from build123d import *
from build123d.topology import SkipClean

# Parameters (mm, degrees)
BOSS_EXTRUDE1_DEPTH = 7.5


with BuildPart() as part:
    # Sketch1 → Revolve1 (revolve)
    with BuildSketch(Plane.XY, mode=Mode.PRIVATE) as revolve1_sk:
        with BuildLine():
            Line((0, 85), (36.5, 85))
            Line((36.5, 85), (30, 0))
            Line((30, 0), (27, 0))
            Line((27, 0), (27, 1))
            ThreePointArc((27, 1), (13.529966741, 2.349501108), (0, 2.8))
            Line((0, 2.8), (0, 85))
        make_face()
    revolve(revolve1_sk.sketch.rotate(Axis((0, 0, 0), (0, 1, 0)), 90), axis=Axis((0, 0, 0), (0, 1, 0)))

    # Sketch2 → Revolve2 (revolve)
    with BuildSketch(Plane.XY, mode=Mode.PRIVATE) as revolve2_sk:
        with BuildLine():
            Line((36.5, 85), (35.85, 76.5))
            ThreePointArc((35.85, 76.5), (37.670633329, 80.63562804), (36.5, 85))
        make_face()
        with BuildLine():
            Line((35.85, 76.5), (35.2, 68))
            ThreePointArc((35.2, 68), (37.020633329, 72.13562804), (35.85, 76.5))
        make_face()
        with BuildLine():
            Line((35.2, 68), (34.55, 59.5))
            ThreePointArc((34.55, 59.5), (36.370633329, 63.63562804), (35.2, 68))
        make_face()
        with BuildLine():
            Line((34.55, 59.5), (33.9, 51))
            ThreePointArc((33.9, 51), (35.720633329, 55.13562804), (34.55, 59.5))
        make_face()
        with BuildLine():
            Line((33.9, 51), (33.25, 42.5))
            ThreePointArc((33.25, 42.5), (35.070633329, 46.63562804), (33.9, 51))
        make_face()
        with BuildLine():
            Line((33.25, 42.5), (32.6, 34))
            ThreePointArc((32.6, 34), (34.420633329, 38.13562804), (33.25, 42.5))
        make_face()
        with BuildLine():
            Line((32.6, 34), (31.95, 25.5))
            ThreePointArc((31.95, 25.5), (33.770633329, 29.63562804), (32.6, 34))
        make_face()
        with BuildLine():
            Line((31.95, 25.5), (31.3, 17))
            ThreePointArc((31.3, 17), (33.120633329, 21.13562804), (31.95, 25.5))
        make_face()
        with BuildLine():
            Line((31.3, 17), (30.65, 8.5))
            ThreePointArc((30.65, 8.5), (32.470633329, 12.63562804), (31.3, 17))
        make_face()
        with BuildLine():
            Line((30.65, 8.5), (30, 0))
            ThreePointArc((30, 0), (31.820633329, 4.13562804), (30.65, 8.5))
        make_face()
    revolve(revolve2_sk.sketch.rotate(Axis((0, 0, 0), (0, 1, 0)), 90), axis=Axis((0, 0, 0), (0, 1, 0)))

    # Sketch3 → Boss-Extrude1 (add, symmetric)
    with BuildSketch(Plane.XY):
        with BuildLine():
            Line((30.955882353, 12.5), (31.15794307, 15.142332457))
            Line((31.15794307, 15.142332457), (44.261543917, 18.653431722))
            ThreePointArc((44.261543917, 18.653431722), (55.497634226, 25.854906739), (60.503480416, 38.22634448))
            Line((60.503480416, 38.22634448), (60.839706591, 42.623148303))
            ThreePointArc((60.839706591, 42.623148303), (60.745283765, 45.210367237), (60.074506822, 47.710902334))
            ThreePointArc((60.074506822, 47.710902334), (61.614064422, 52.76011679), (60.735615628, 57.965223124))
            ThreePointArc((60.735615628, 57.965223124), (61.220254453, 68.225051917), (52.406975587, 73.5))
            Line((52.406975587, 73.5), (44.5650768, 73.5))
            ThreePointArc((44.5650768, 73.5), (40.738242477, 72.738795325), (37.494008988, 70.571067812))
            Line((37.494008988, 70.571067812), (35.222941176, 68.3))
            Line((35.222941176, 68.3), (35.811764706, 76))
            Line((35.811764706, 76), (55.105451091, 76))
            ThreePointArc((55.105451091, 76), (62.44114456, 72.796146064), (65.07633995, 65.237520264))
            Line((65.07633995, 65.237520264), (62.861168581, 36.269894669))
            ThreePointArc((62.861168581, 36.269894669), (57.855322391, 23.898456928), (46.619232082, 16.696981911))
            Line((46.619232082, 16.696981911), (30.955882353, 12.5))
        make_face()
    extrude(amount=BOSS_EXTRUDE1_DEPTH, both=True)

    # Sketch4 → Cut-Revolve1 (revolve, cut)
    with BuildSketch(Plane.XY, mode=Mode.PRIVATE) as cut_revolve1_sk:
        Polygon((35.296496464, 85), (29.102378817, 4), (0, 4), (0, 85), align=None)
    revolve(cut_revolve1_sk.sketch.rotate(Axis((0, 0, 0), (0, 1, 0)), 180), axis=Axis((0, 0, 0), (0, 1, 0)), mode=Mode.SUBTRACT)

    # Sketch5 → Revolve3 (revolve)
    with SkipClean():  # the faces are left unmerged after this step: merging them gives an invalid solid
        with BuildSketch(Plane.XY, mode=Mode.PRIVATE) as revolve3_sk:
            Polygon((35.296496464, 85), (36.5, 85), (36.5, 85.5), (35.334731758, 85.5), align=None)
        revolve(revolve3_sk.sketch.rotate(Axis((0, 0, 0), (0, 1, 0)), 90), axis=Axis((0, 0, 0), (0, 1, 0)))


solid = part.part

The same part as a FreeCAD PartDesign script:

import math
import FreeCAD as App
import Part
import Sketcher
from FreeCAD import Vector
Q = App.Units.Quantity

doc = App.newDocument("Part")
params = doc.addObject("Spreadsheet::Sheet", "Params")
for row, (alias, value) in enumerate([
    ("sketch1_radius", "203.4 mm"),
    ("sketch1_width", "3 mm"),
    ("sketch1_height", "1 mm"),
    ("sketch1_width2", "36.5 mm"),
    ("sketch1_height2", "82.2 mm"),
    ("revolution_angle", "360 deg"),
    ("revolution2_angle", "360 deg"),
    ("sketch3_radius", "22 mm"),
    ("sketch3_radius2", "10 mm"),
    ("sketch3_radius3", "11.5 mm"),
    ("pad1_length", "15 mm"),
    ("sketch4_height", "81 mm"),
    ("groove_angle", "360 deg"),
    ("sketch5_height", "0.5 mm"),
    ("revolution3_angle", "360 deg"),
], start=1):
    params.set(f"A{row}", alias)
    params.set(f"B{row}", "=" + value)
    params.setAlias(f"B{row}", alias)

body = doc.addObject("PartDesign::Body", "Body")

sketch1 = body.newObject("Sketcher::SketchObject", "Sketch")
sketch1.AttachmentSupport = (doc.getObject("XY_Plane"), [""])
sketch1.MapMode = "FlatFace"
sketch1.addGeometry(Part.LineSegment(Vector(36.5, 85, 0), Vector(0, 85, 0)), False)
sketch1.addGeometry(Part.LineSegment(Vector(0, 85, 0), Vector(0, 2.8, 0)), False)
sketch1.addGeometry(Part.ArcOfCircle(Part.Circle(Vector(0, -200.6, 0), Vector(0, 0, 1), 203.4), math.radians(82.37), math.radians(90)), False)
sketch1.addGeometry(Part.LineSegment(Vector(27, 1, 0), Vector(27, 0, 0)), False)
sketch1.addGeometry(Part.LineSegment(Vector(27, 0, 0), Vector(30, 0, 0)), False)
sketch1.addGeometry(Part.LineSegment(Vector(30, 0, 0), Vector(36.5, 85, 0)), False)
sketch1.addConstraint(Sketcher.Constraint("Coincident", 0, 2, 1, 1))
sketch1.addConstraint(Sketcher.Constraint("Coincident", 1, 2, 2, 2))
sketch1.addConstraint(Sketcher.Constraint("Coincident", 2, 1, 3, 1))
sketch1.addConstraint(Sketcher.Constraint("Coincident", 3, 2, 4, 1))
sketch1.addConstraint(Sketcher.Constraint("Coincident", 4, 2, 5, 1))
sketch1.addConstraint(Sketcher.Constraint("Coincident", 5, 2, 0, 1))
sketch1.addConstraint(Sketcher.Constraint("Horizontal", 0))
sketch1.addConstraint(Sketcher.Constraint("Vertical", 1))
sketch1.addConstraint(Sketcher.Constraint("Vertical", 3))
sketch1.addConstraint(Sketcher.Constraint("Horizontal", 4))
sketch1.addConstraint(Sketcher.Constraint("PointOnObject", 2, 3, -2))
sketch1.addConstraint(Sketcher.Constraint("PointOnObject", 0, 2, -2))
sketch1.addConstraint(Sketcher.Constraint("PointOnObject", 3, 2, -1))
sketch1.addConstraint(Sketcher.Constraint("Radius", 2, Q("203.4 mm")))
sketch1.addConstraint(Sketcher.Constraint("DistanceX", 4, 1, 4, 2, Q("3 mm")))
sketch1.addConstraint(Sketcher.Constraint("DistanceY", 3, 2, 3, 1, Q("1 mm")))
sketch1.addConstraint(Sketcher.Constraint("DistanceX", 0, 2, 0, 1, Q("36.5 mm")))
sketch1.addConstraint(Sketcher.Constraint("DistanceY", 1, 2, 1, 1, Q("82.2 mm")))
sketch1.addConstraint(Sketcher.Constraint("DistanceY", -1, 1, 0, 2, Q("85 mm")))
sketch1.setExpression("Constraints[13]", "Params.sketch1_radius")
sketch1.setExpression("Constraints[14]", "Params.sketch1_width")
sketch1.setExpression("Constraints[15]", "Params.sketch1_height")
sketch1.setExpression("Constraints[16]", "Params.sketch1_width2")
sketch1.setExpression("Constraints[17]", "Params.sketch1_height2")
revolution = body.newObject("PartDesign::Revolution", "Revolution")
revolution.Profile = sketch1
revolution.ReferenceAxis = (sketch1, ["V_Axis"])
revolution.setExpression("Angle", "Params.revolution_angle")

sketch2 = body.newObject("Sketcher::SketchObject", "Sketch001")
sketch2.AttachmentSupport = (doc.getObject("XY_Plane"), [""])
sketch2.MapMode = "FlatFace"
sketch2.addGeometry(Part.LineSegment(Vector(36, 85, 0), Vector(36, 76, 0)), False)
sketch2.addGeometry(Part.ArcOfCircle(Part.Circle(Vector(31, 81, 0), Vector(0, 0, 1), 7), math.radians(-43), math.radians(34)), False)
sketch2.addGeometry(Part.LineSegment(Vector(36, 76, 0), Vector(35, 68, 0)), False)
sketch2.addGeometry(Part.ArcOfCircle(Part.Circle(Vector(30, 73, 0), Vector(0, 0, 1), 7), math.radians(-43), math.radians(34)), False)
sketch2.addGeometry(Part.LineSegment(Vector(35, 68, 0), Vector(35, 60, 0)), False)
sketch2.addGeometry(Part.ArcOfCircle(Part.Circle(Vector(30, 64, 0), Vector(0, 0, 1), 7), math.radians(-43), math.radians(34)), False)
sketch2.addGeometry(Part.LineSegment(Vector(35, 60, 0), Vector(34, 51, 0)), False)
sketch2.addGeometry(Part.ArcOfCircle(Part.Circle(Vector(29, 56, 0), Vector(0, 0, 1), 7), math.radians(-43), math.radians(34)), False)
sketch2.addGeometry(Part.LineSegment(Vector(34, 51, 0), Vector(33, 42, 0)), False)
sketch2.addGeometry(Part.ArcOfCircle(Part.Circle(Vector(28, 47, 0), Vector(0, 0, 1), 7), math.radians(-43), math.radians(34)), False)
sketch2.addGeometry(Part.LineSegment(Vector(33, 42, 0), Vector(33, 34, 0)), False)
sketch2.addGeometry(Part.ArcOfCircle(Part.Circle(Vector(28, 39, 0), Vector(0, 0, 1), 7), math.radians(-43), math.radians(34)), False)
sketch2.addGeometry(Part.LineSegment(Vector(33, 34, 0), Vector(32, 26, 0)), False)
sketch2.addGeometry(Part.ArcOfCircle(Part.Circle(Vector(27, 30, 0), Vector(0, 0, 1), 7), math.radians(-43), math.radians(34)), False)
sketch2.addGeometry(Part.LineSegment(Vector(32, 26, 0), Vector(31, 17, 0)), False)
sketch2.addGeometry(Part.ArcOfCircle(Part.Circle(Vector(26, 22, 0), Vector(0, 0, 1), 7), math.radians(-43), math.radians(34)), False)
sketch2.addGeometry(Part.LineSegment(Vector(31, 17, 0), Vector(31, 8, 0)), False)
sketch2.addGeometry(Part.ArcOfCircle(Part.Circle(Vector(26, 13, 0), Vector(0, 0, 1), 7), math.radians(-43), math.radians(34)), False)
sketch2.addGeometry(Part.LineSegment(Vector(31, 8, 0), Vector(30, 0, 0)), False)
sketch2.addGeometry(Part.ArcOfCircle(Part.Circle(Vector(25, 5, 0), Vector(0, 0, 1), 7), math.radians(-43), math.radians(34)), False)
sketch2.addConstraint(Sketcher.Constraint("Coincident", 0, 1, 1, 2))
sketch2.addConstraint(Sketcher.Constraint("Coincident", 1, 1, 0, 2))
sketch2.addConstraint(Sketcher.Constraint("Coincident", 2, 1, 3, 2))
sketch2.addConstraint(Sketcher.Constraint("Coincident", 3, 1, 2, 2))
sketch2.addConstraint(Sketcher.Constraint("Coincident", 4, 1, 5, 2))
sketch2.addConstraint(Sketcher.Constraint("Coincident", 5, 1, 4, 2))
sketch2.addConstraint(Sketcher.Constraint("Coincident", 6, 1, 7, 2))
sketch2.addConstraint(Sketcher.Constraint("Coincident", 7, 1, 6, 2))
sketch2.addConstraint(Sketcher.Constraint("Coincident", 8, 1, 9, 2))
sketch2.addConstraint(Sketcher.Constraint("Coincident", 9, 1, 8, 2))
sketch2.addConstraint(Sketcher.Constraint("Coincident", 10, 1, 11, 2))
sketch2.addConstraint(Sketcher.Constraint("Coincident", 11, 1, 10, 2))
sketch2.addConstraint(Sketcher.Constraint("Coincident", 12, 1, 13, 2))
sketch2.addConstraint(Sketcher.Constraint("Coincident", 13, 1, 12, 2))
sketch2.addConstraint(Sketcher.Constraint("Coincident", 14, 1, 15, 2))
sketch2.addConstraint(Sketcher.Constraint("Coincident", 15, 1, 14, 2))
sketch2.addConstraint(Sketcher.Constraint("Coincident", 16, 1, 17, 2))
sketch2.addConstraint(Sketcher.Constraint("Coincident", 17, 1, 16, 2))
sketch2.addConstraint(Sketcher.Constraint("Coincident", 18, 1, 19, 2))
sketch2.addConstraint(Sketcher.Constraint("Coincident", 19, 1, 18, 2))
sketch2.addConstraint(Sketcher.Constraint("Coincident", 2, 1, 1, 1))
sketch2.addConstraint(Sketcher.Constraint("Coincident", 4, 1, 3, 1))
sketch2.addConstraint(Sketcher.Constraint("Coincident", 6, 1, 5, 1))
sketch2.addConstraint(Sketcher.Constraint("Coincident", 8, 1, 7, 1))
sketch2.addConstraint(Sketcher.Constraint("Coincident", 10, 1, 9, 1))
sketch2.addConstraint(Sketcher.Constraint("Coincident", 12, 1, 11, 1))
sketch2.addConstraint(Sketcher.Constraint("Coincident", 14, 1, 13, 1))
sketch2.addConstraint(Sketcher.Constraint("Coincident", 16, 1, 15, 1))
sketch2.addConstraint(Sketcher.Constraint("Coincident", 18, 1, 17, 1))
sketch2.addConstraint(Sketcher.Constraint("Equal", 1, 3))
sketch2.addConstraint(Sketcher.Constraint("Equal", 3, 5))
sketch2.addConstraint(Sketcher.Constraint("Equal", 5, 7))
sketch2.addConstraint(Sketcher.Constraint("Equal", 7, 9))
sketch2.addConstraint(Sketcher.Constraint("Equal", 9, 11))
sketch2.addConstraint(Sketcher.Constraint("Equal", 11, 13))
sketch2.addConstraint(Sketcher.Constraint("Equal", 13, 15))
sketch2.addConstraint(Sketcher.Constraint("Equal", 15, 17))
sketch2.addConstraint(Sketcher.Constraint("Equal", 17, 19))
sketch2.addConstraint(Sketcher.Constraint("PointOnObject", 19, 1, -1))
sketch2.addConstraint(Sketcher.Constraint("Parallel", 0, 2))
sketch2.addConstraint(Sketcher.Constraint("Parallel", 2, 4))
sketch2.addConstraint(Sketcher.Constraint("Parallel", 4, 6))
sketch2.addConstraint(Sketcher.Constraint("Parallel", 6, 8))
sketch2.addConstraint(Sketcher.Constraint("Parallel", 8, 10))
sketch2.addConstraint(Sketcher.Constraint("Parallel", 10, 12))
sketch2.addConstraint(Sketcher.Constraint("Parallel", 12, 14))
sketch2.addConstraint(Sketcher.Constraint("Parallel", 14, 16))
sketch2.addConstraint(Sketcher.Constraint("Parallel", 16, 18))
sketch2.addConstraint(Sketcher.Constraint("Equal", 0, 2))
sketch2.addConstraint(Sketcher.Constraint("Equal", 2, 4))
sketch2.addConstraint(Sketcher.Constraint("Equal", 4, 6))
sketch2.addConstraint(Sketcher.Constraint("Equal", 6, 8))
sketch2.addConstraint(Sketcher.Constraint("Equal", 8, 10))
sketch2.addConstraint(Sketcher.Constraint("Equal", 10, 12))
sketch2.addConstraint(Sketcher.Constraint("Equal", 12, 14))
sketch2.addConstraint(Sketcher.Constraint("Equal", 14, 16))
sketch2.addConstraint(Sketcher.Constraint("Equal", 16, 18))
sketch2.addConstraint(Sketcher.Constraint("DistanceY", -1, 1, 0, 1, Q("85 mm")))
sketch2.addConstraint(Sketcher.Constraint("DistanceX", -1, 1, 19, 1, Q("30 mm")))
sketch2.addConstraint(Sketcher.Constraint("DistanceX", -1, 1, 0, 1, Q("36.5 mm")))
sketch2.addConstraint(Sketcher.Constraint("Radius", 1, Q("6.806042 mm")))
revolution2 = body.newObject("PartDesign::Revolution", "Revolution001")
revolution2.Profile = sketch2
revolution2.ReferenceAxis = (sketch2, ["V_Axis"])
revolution2.setExpression("Angle", "Params.revolution2_angle")

sketch3 = body.newObject("Sketcher::SketchObject", "Sketch002")
sketch3.AttachmentSupport = (doc.getObject("XY_Plane"), [""])
sketch3.MapMode = "FlatFace"
sketch3.addGeometry(Part.LineSegment(Vector(31.2, 15.1, 0), Vector(31, 12.5, 0)), False)
sketch3.addGeometry(Part.LineSegment(Vector(31, 12.5, 0), Vector(46.6, 16.7, 0)), False)
sketch3.addGeometry(Part.ArcOfCircle(Part.Circle(Vector(40.9, 37.9, 0), Vector(0, 0, 1), 22), math.radians(-75), math.radians(-4)), False)
sketch3.addGeometry(Part.LineSegment(Vector(62.9, 36.3, 0), Vector(65.1, 65.2, 0)), False)
sketch3.addGeometry(Part.ArcOfCircle(Part.Circle(Vector(55.1, 66, 0), Vector(0, 0, 1), 10), math.radians(-4), math.radians(90)), False)
sketch3.addGeometry(Part.LineSegment(Vector(55.1, 76, 0), Vector(35.8, 76, 0)), False)
sketch3.addGeometry(Part.LineSegment(Vector(35.8, 76, 0), Vector(35.2, 68.3, 0)), False)
sketch3.addGeometry(Part.LineSegment(Vector(35.2, 68.3, 0), Vector(37.5, 70.6, 0)), False)
sketch3.addGeometry(Part.ArcOfCircle(Part.Circle(Vector(44.6, 63.5, 0), Vector(0, 0, 1), 10), math.radians(90), math.radians(135)), False)
sketch3.addGeometry(Part.LineSegment(Vector(44.6, 73.5, 0), Vector(52.4, 73.5, 0)), False)
sketch3.addGeometry(Part.ArcOfCircle(Part.Circle(Vector(52.4, 63.5, 0), Vector(0, 0, 1), 10), math.radians(-34), math.radians(90)), False)
sketch3.addGeometry(Part.ArcOfCircle(Part.Circle(Vector(50.1, 53.5, 0), Vector(0, 0, 1), 11.5), math.radians(-30), math.radians(23)), False)
sketch3.addGeometry(Part.ArcOfCircle(Part.Circle(Vector(49.4, 43.5, 0), Vector(0, 0, 1), 11.5), math.radians(-4), math.radians(21)), False)
sketch3.addGeometry(Part.LineSegment(Vector(60.8, 42.6, 0), Vector(60.5, 38.2, 0)), False)
sketch3.addGeometry(Part.ArcOfCircle(Part.Circle(Vector(38.6, 39.9, 0), Vector(0, 0, 1), 22), math.radians(-75), math.radians(-4)), False)
sketch3.addGeometry(Part.LineSegment(Vector(44.3, 18.7, 0), Vector(31.2, 15.1, 0)), False)
sketch3.addConstraint(Sketcher.Constraint("Coincident", 0, 2, 1, 1))
sketch3.addConstraint(Sketcher.Constraint("Tangent", 1, 2, 2, 1))
sketch3.addConstraint(Sketcher.Constraint("Tangent", 2, 2, 3, 1))
sketch3.addConstraint(Sketcher.Constraint("Tangent", 3, 2, 4, 1))
sketch3.addConstraint(Sketcher.Constraint("Tangent", 4, 2, 5, 1))
sketch3.addConstraint(Sketcher.Constraint("Coincident", 5, 2, 6, 1))
sketch3.addConstraint(Sketcher.Constraint("Coincident", 6, 2, 7, 1))
sketch3.addConstraint(Sketcher.Constraint("Tangent", 7, 2, 8, 2))
sketch3.addConstraint(Sketcher.Constraint("Tangent", 8, 1, 9, 1))
sketch3.addConstraint(Sketcher.Constraint("Tangent", 9, 2, 10, 2))
sketch3.addConstraint(Sketcher.Constraint("Coincident", 10, 1, 11, 2))
sketch3.addConstraint(Sketcher.Constraint("Coincident", 11, 1, 12, 2))
sketch3.addConstraint(Sketcher.Constraint("Tangent", 12, 1, 13, 1))
sketch3.addConstraint(Sketcher.Constraint("Tangent", 13, 2, 14, 2))
sketch3.addConstraint(Sketcher.Constraint("Tangent", 14, 1, 15, 1))
sketch3.addConstraint(Sketcher.Constraint("Coincident", 15, 2, 0, 1))
sketch3.addConstraint(Sketcher.Constraint("Horizontal", 5))
sketch3.addConstraint(Sketcher.Constraint("Horizontal", 9))
sketch3.addConstraint(Sketcher.Constraint("Equal", 4, 8))
sketch3.addConstraint(Sketcher.Constraint("Equal", 8, 10))
sketch3.addConstraint(Sketcher.Constraint("Equal", 11, 12))
sketch3.addConstraint(Sketcher.Constraint("Equal", 2, 14))
sketch3.addConstraint(Sketcher.Constraint("Parallel", 0, 3))
sketch3.addConstraint(Sketcher.Constraint("Parallel", 3, 6))
sketch3.addConstraint(Sketcher.Constraint("Parallel", 6, 13))
sketch3.addConstraint(Sketcher.Constraint("Parallel", 1, 15))
sketch3.addConstraint(Sketcher.Constraint("Radius", 2, Q("22 mm")))
sketch3.addConstraint(Sketcher.Constraint("Radius", 4, Q("10 mm")))
sketch3.addConstraint(Sketcher.Constraint("Radius", 11, Q("11.5 mm")))
sketch3.addConstraint(Sketcher.Constraint("Angle", 1, Q("15 deg")))
sketch3.addConstraint(Sketcher.Constraint("Angle", 7, Q("45 deg")))
sketch3.addConstraint(Sketcher.Constraint("DistanceY", -1, 1, 4, 3, Q("66 mm")))
sketch3.addConstraint(Sketcher.Constraint("DistanceY", 11, 3, 10, 3, Q("10 mm")))
sketch3.addConstraint(Sketcher.Constraint("DistanceY", 12, 3, 11, 3, Q("10 mm")))
sketch3.addConstraint(Sketcher.Constraint("DistanceY", 0, 2, 12, 3, Q("31 mm")))
sketch3.addConstraint(Sketcher.Constraint("DistanceY", -1, 1, 8, 3, Q("63.5 mm")))
sketch3.addConstraint(Sketcher.Constraint("DistanceY", -1, 1, 6, 2, Q("68.3 mm")))
sketch3.addConstraint(Sketcher.Constraint("DistanceX", 9, 1, 9, 2, Q("7.841899 mm")))
sketch3.addConstraint(Sketcher.Constraint("Distance", 3, Q("29.0522 mm")))
sketch3.addConstraint(Sketcher.Constraint("DistanceY", -1, 1, 14, 3, Q("39.9038 mm")))
sketch3.addConstraint(Sketcher.Constraint("DistanceX", 11, 1, 12, 1, Q("0.7652 mm")))
sketch3.addConstraint(Sketcher.Constraint("DistanceX", 15, 2, 14, 1, Q("13.103601 mm")))
sketch3.addConstraint(Sketcher.Constraint("Distance", 6, Q("7.722481 mm")))
sketch3.addConstraint(Sketcher.Constraint("DistanceX", 5, 2, 5, 1, Q("19.293686 mm")))
sketch3.addConstraint(Sketcher.Constraint("DistanceX", -1, 1, 4, 3, Q("55.105451 mm")))
sketch3.setExpression("Constraints[26]", "Params.sketch3_radius")
sketch3.setExpression("Constraints[27]", "Params.sketch3_radius2")
sketch3.setExpression("Constraints[28]", "Params.sketch3_radius3")
pad1 = body.newObject("PartDesign::Pad", "Pad")
pad1.Profile = sketch3
pad1.setExpression("Length", "Params.pad1_length")
pad1.Midplane = True

sketch4 = body.newObject("Sketcher::SketchObject", "Sketch003")
sketch4.AttachmentSupport = (doc.getObject("XY_Plane"), [""])
sketch4.MapMode = "FlatFace"
sketch4.addGeometry(Part.LineSegment(Vector(29, 4, 0), Vector(35, 85, 0)), False)
sketch4.addGeometry(Part.LineSegment(Vector(35, 85, 0), Vector(0, 85, 0)), False)
sketch4.addGeometry(Part.LineSegment(Vector(0, 85, 0), Vector(0, 4, 0)), False)
sketch4.addGeometry(Part.LineSegment(Vector(0, 4, 0), Vector(29, 4, 0)), False)
sketch4.addConstraint(Sketcher.Constraint("Coincident", 0, 2, 1, 1))
sketch4.addConstraint(Sketcher.Constraint("Coincident", 1, 2, 2, 1))
sketch4.addConstraint(Sketcher.Constraint("Coincident", 2, 2, 3, 1))
sketch4.addConstraint(Sketcher.Constraint("Coincident", 3, 2, 0, 1))
sketch4.addConstraint(Sketcher.Constraint("Horizontal", 1))
sketch4.addConstraint(Sketcher.Constraint("Vertical", 2))
sketch4.addConstraint(Sketcher.Constraint("Horizontal", 3))
sketch4.addConstraint(Sketcher.Constraint("PointOnObject", 1, 2, -2))
sketch4.addConstraint(Sketcher.Constraint("DistanceY", 2, 2, 2, 1, Q("81 mm")))
sketch4.addConstraint(Sketcher.Constraint("DistanceY", -1, 1, 0, 2, Q("85 mm")))
sketch4.addConstraint(Sketcher.Constraint("DistanceX", 3, 1, 3, 2, Q("29.102379 mm")))
sketch4.addConstraint(Sketcher.Constraint("Distance", 0, Q("81.236489 mm")))
sketch4.setExpression("Constraints[8]", "Params.sketch4_height")
groove = body.newObject("PartDesign::Groove", "Groove")
groove.Profile = sketch4
groove.ReferenceAxis = (sketch4, ["V_Axis"])
groove.setExpression("Angle", "Params.groove_angle")

sketch5 = body.newObject("Sketcher::SketchObject", "Sketch004")
sketch5.AttachmentSupport = (doc.getObject("XY_Plane"), [""])
sketch5.MapMode = "FlatFace"
sketch5.addGeometry(Part.LineSegment(Vector(35.3, 85, 0), Vector(36.5, 85, 0)), False)
sketch5.addGeometry(Part.LineSegment(Vector(36.5, 85, 0), Vector(36.5, 85.5, 0)), False)
sketch5.addGeometry(Part.LineSegment(Vector(36.5, 85.5, 0), Vector(35.3, 85.5, 0)), False)
sketch5.addGeometry(Part.LineSegment(Vector(35.3, 85.5, 0), Vector(35.3, 85, 0)), False)
sketch5.addConstraint(Sketcher.Constraint("Coincident", 0, 2, 1, 1))
sketch5.addConstraint(Sketcher.Constraint("Coincident", 1, 2, 2, 1))
sketch5.addConstraint(Sketcher.Constraint("Coincident", 2, 2, 3, 1))
sketch5.addConstraint(Sketcher.Constraint("Coincident", 3, 2, 0, 1))
sketch5.addConstraint(Sketcher.Constraint("Horizontal", 0))
sketch5.addConstraint(Sketcher.Constraint("Vertical", 1))
sketch5.addConstraint(Sketcher.Constraint("Horizontal", 2))
sketch5.addConstraint(Sketcher.Constraint("DistanceY", 1, 1, 1, 2, Q("0.5 mm")))
sketch5.addConstraint(Sketcher.Constraint("DistanceY", -1, 1, 0, 2, Q("85 mm")))
sketch5.addConstraint(Sketcher.Constraint("DistanceX", -1, 1, 0, 2, Q("36.5 mm")))
sketch5.addConstraint(Sketcher.Constraint("DistanceX", 2, 2, 2, 1, Q("1.165268 mm")))
sketch5.addConstraint(Sketcher.Constraint("Distance", 3, Q("0.50146 mm")))
sketch5.setExpression("Constraints[7]", "Params.sketch5_height")
revolution3 = body.newObject("PartDesign::Revolution", "Revolution002")
revolution3.Profile = sketch5
revolution3.ReferenceAxis = (sketch5, ["V_Axis"])
revolution3.setExpression("Angle", "Params.revolution3_angle")

doc.recompute()
